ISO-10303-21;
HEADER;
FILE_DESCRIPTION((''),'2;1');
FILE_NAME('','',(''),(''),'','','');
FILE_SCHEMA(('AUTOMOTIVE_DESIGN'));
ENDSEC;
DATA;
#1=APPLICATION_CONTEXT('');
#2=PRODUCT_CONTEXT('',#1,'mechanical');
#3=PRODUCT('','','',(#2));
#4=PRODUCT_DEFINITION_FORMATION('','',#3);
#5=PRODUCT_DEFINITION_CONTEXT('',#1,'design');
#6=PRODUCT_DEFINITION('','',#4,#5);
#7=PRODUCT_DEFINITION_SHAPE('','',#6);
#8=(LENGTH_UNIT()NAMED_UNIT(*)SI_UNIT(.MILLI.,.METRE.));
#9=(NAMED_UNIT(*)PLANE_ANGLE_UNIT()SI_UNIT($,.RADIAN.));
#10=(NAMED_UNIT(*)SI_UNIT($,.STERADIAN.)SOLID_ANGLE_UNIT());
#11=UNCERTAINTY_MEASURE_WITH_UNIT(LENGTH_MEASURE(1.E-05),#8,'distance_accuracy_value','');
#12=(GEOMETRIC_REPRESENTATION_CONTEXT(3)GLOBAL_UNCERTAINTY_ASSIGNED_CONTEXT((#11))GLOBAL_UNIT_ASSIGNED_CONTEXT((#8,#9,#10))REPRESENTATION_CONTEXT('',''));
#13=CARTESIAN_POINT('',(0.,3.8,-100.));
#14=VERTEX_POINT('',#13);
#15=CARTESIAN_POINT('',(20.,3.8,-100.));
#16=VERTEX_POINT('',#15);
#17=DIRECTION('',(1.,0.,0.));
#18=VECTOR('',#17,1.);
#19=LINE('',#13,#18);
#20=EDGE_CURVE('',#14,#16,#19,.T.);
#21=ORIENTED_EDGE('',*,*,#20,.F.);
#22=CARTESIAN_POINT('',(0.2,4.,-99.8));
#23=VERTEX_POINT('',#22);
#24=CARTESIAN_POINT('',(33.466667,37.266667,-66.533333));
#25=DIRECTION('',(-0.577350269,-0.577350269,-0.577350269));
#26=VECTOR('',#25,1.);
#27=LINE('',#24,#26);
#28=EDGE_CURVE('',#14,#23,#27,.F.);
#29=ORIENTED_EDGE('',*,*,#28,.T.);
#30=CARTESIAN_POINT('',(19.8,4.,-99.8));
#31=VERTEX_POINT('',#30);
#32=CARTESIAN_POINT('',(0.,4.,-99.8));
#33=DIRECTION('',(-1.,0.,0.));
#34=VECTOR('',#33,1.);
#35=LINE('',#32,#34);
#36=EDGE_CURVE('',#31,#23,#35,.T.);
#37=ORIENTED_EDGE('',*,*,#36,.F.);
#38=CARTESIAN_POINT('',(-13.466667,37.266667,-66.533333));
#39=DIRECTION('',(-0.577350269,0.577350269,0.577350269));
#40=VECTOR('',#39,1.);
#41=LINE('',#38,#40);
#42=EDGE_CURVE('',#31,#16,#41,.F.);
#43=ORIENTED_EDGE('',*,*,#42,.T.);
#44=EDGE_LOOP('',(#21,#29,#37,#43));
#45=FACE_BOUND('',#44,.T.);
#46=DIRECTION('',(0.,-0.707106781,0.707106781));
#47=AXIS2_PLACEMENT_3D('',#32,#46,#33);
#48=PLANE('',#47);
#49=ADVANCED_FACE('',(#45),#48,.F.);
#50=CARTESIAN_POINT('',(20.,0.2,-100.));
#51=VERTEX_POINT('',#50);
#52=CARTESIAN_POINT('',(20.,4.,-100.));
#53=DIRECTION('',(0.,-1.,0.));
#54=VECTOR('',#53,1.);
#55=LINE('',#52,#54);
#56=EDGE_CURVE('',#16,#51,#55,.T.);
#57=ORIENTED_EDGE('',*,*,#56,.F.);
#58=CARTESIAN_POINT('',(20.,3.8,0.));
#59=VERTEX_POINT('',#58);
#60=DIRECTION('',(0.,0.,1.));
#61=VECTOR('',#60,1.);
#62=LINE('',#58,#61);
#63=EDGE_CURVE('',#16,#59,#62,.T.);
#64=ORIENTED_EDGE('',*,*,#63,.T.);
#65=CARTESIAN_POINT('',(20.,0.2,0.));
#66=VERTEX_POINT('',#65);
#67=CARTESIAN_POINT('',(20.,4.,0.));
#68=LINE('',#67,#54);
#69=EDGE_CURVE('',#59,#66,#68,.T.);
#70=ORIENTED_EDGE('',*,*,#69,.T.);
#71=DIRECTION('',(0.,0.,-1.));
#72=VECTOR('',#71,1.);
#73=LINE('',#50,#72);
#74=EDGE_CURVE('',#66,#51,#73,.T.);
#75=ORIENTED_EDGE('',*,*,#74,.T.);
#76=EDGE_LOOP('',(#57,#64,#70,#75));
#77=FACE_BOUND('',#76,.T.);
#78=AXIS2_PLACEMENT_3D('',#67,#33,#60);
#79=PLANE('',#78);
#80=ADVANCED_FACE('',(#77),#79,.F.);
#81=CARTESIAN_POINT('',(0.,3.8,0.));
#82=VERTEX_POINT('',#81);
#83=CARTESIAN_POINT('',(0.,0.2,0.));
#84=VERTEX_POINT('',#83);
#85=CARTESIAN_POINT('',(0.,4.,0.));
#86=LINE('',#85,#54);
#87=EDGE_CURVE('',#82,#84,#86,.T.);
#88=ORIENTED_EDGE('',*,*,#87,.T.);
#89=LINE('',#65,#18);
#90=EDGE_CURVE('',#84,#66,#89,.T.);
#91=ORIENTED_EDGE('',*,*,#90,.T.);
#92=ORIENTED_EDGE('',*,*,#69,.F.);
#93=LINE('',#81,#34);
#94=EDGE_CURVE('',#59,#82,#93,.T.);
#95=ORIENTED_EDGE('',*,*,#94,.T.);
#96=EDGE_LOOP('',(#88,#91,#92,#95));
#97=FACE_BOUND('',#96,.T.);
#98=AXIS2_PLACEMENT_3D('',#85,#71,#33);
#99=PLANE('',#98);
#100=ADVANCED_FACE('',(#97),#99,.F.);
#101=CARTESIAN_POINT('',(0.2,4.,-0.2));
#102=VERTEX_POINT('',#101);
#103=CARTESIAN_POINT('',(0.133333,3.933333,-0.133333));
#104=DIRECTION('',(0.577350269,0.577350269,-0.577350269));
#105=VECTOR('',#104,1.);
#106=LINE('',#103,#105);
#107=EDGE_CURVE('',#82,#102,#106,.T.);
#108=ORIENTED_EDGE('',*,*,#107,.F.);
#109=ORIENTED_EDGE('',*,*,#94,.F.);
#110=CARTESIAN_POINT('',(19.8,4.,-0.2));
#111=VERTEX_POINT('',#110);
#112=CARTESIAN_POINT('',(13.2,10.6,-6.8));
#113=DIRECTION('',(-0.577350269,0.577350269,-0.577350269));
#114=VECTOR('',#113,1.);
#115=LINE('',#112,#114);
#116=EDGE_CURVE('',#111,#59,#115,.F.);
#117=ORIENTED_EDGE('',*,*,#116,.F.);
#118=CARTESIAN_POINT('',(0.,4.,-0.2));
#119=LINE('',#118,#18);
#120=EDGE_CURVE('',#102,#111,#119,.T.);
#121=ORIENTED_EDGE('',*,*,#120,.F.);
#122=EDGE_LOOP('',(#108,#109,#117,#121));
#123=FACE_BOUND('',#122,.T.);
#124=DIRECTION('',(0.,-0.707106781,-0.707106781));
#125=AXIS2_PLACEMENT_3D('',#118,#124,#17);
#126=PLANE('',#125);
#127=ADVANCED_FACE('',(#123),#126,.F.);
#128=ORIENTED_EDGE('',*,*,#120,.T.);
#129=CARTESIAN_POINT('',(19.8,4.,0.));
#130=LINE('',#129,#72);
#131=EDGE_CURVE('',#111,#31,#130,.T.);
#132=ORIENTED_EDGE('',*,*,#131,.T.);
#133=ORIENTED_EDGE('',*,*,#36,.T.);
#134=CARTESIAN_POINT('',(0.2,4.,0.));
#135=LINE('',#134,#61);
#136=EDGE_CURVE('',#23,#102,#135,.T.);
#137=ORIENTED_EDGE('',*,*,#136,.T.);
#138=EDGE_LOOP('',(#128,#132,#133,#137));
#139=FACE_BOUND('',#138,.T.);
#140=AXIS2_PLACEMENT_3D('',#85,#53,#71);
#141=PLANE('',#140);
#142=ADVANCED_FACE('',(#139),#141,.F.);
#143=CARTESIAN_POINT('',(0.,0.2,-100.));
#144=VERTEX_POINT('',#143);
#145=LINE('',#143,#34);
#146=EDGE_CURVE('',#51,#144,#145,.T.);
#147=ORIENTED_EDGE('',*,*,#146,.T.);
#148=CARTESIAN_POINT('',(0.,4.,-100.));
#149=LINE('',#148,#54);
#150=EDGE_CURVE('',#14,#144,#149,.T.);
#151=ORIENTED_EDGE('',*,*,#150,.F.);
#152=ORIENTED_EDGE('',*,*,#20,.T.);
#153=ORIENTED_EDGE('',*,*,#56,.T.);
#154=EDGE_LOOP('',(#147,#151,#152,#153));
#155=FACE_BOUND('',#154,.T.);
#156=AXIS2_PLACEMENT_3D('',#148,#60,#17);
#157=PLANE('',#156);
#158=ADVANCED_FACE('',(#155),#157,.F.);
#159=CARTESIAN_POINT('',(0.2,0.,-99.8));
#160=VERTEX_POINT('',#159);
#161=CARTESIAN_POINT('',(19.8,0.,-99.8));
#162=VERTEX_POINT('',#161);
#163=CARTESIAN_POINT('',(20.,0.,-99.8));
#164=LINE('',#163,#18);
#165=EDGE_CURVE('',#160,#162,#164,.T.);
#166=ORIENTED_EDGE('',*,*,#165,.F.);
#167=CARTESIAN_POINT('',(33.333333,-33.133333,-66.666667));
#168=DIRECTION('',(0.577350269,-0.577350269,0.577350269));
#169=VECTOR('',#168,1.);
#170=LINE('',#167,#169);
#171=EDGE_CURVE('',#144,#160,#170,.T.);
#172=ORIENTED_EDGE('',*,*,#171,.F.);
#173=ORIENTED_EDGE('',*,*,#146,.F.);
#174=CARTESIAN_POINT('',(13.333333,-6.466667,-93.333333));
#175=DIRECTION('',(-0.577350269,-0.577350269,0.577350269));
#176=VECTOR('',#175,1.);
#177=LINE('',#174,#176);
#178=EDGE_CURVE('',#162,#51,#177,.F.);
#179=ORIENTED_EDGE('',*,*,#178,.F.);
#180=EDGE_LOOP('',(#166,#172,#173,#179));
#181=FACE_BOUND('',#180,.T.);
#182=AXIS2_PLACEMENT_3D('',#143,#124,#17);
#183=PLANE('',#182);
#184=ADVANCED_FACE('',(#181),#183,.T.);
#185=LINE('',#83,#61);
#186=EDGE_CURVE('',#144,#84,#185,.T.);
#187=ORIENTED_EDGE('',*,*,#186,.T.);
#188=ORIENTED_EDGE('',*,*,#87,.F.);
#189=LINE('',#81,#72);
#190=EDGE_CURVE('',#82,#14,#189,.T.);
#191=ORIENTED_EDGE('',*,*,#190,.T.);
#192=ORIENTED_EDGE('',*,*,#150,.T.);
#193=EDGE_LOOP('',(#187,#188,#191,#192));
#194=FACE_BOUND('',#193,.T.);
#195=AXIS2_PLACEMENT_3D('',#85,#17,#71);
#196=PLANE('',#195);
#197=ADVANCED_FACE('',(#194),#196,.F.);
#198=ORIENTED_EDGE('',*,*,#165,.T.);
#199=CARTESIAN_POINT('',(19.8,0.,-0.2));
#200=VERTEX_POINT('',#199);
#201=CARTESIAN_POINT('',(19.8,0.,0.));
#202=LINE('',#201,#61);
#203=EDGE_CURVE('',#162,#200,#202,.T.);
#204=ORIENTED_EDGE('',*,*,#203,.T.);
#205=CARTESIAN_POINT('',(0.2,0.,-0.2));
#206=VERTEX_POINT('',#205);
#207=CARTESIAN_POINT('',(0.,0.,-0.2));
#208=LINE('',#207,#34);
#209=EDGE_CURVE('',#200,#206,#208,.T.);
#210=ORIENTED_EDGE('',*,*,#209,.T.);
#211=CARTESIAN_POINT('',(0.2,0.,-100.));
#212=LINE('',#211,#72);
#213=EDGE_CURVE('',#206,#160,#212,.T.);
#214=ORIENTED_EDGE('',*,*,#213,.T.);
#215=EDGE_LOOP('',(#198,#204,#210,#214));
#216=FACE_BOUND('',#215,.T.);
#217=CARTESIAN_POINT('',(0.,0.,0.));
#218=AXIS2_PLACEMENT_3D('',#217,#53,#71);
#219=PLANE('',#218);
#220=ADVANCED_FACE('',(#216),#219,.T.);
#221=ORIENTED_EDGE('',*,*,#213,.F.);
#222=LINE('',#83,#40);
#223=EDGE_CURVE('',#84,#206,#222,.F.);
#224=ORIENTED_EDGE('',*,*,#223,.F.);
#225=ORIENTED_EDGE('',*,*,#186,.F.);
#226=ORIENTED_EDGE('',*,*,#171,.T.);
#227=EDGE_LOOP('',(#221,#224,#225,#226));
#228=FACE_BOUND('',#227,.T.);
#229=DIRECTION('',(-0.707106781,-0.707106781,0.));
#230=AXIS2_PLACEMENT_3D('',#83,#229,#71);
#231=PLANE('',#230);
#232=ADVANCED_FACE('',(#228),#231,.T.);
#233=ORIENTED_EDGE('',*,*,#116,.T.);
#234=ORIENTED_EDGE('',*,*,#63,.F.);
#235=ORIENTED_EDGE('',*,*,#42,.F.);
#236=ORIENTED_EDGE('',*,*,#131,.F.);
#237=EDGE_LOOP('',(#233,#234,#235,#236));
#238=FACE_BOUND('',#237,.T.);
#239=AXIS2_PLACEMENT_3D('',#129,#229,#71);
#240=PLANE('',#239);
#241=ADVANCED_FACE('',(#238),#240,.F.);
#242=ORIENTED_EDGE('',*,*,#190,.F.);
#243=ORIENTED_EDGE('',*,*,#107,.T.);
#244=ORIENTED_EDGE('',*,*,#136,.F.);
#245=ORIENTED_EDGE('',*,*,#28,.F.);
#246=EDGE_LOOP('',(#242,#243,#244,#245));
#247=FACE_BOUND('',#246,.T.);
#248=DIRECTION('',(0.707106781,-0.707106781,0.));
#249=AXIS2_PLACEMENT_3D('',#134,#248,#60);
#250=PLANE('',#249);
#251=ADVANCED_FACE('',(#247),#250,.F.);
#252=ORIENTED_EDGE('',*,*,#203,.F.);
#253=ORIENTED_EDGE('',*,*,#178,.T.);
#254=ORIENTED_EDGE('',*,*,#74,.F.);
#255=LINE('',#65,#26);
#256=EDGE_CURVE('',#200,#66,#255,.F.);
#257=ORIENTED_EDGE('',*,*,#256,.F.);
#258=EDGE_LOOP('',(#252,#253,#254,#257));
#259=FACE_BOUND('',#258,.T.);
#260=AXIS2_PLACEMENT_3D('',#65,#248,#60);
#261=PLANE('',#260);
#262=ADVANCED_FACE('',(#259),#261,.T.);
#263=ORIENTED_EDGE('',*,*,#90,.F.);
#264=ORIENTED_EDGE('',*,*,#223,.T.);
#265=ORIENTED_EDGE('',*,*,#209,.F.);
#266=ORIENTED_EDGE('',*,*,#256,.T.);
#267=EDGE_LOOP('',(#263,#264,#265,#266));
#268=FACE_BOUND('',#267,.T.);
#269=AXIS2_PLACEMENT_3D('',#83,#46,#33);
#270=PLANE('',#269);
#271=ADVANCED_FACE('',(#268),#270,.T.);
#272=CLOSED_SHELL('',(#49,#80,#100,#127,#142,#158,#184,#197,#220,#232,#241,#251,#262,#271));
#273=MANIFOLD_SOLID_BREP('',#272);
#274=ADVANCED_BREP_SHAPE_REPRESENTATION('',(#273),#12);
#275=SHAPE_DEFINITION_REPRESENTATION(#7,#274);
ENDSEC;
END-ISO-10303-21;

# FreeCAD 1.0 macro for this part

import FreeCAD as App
import Part
import Sketcher
from FreeCAD import Vector
Q = App.Units.Quantity


def edges_at(feature, points):
    """Names of the edges that pass closest to the given points."""
    edges = feature.Shape.Edges
    near = lambda p: min(range(len(edges)), key=lambda i: edges[i].distToShape(Part.Vertex(*p))[0])
    return sorted({f"Edge{near(p) + 1}" for p in points})

doc = App.newDocument("Part")
body = doc.addObject("PartDesign::Body", "Body")

# Sketch on XZ plane
sketch1 = doc.addObject("Sketcher::SketchObject", "Sketch")
body.addObject(sketch1)
sketch1.AttachmentSupport = (doc.XZ_Plane, [""])
sketch1.MapMode = "FlatFace"
sketch1.addGeometry(Part.LineSegment(Vector(0, -100, 0), Vector(0, 0, 0)), False)
sketch1.addGeometry(Part.LineSegment(Vector(0, 0, 0), Vector(20, 0, 0)), False)
sketch1.addGeometry(Part.LineSegment(Vector(20, 0, 0), Vector(20, -100, 0)), False)
sketch1.addGeometry(Part.LineSegment(Vector(20, -100, 0), Vector(0, -100, 0)), False)
sketch1.addConstraint(Sketcher.Constraint("Coincident", 0, 2, 1, 1))
sketch1.addConstraint(Sketcher.Constraint("Coincident", 1, 2, 2, 1))
sketch1.addConstraint(Sketcher.Constraint("Coincident", 2, 2, 3, 1))
sketch1.addConstraint(Sketcher.Constraint("Coincident", 3, 2, 0, 1))
sketch1.addConstraint(Sketcher.Constraint("Vertical", 0))
sketch1.addConstraint(Sketcher.Constraint("Horizontal", 1))
sketch1.addConstraint(Sketcher.Constraint("Vertical", 2))
sketch1.addConstraint(Sketcher.Constraint("Horizontal", 3))
sketch1.addConstraint(Sketcher.Constraint("Coincident", 0, 2, -1, 1))
sketch1.addConstraint(Sketcher.Constraint("DistanceX", 1, 1, 1, 2, Q("20 mm")))
sketch1.addConstraint(Sketcher.Constraint("DistanceY", 0, 1, 0, 2, Q("100 mm")))
pad1 = doc.addObject("PartDesign::Pad", "Pad")
body.addObject(pad1)
pad1.Profile = sketch1
pad1.Length = 4
pad1.Reversed = True
doc.recompute()

chamfer = doc.addObject("PartDesign::Chamfer", "Chamfer")
body.addObject(chamfer)
chamfer.Base = (pad1, edges_at(pad1, [
    (20, 4, -50),
    (10, 4, -100),
    (0, 4, -50),
    (10, 0, -100),
    (20, 0, -50),
    (10, 0, 0),
    (0, 0, -50),
    (10, 4, 0),
]))
chamfer.Size = 0.2

doc.recompute()
